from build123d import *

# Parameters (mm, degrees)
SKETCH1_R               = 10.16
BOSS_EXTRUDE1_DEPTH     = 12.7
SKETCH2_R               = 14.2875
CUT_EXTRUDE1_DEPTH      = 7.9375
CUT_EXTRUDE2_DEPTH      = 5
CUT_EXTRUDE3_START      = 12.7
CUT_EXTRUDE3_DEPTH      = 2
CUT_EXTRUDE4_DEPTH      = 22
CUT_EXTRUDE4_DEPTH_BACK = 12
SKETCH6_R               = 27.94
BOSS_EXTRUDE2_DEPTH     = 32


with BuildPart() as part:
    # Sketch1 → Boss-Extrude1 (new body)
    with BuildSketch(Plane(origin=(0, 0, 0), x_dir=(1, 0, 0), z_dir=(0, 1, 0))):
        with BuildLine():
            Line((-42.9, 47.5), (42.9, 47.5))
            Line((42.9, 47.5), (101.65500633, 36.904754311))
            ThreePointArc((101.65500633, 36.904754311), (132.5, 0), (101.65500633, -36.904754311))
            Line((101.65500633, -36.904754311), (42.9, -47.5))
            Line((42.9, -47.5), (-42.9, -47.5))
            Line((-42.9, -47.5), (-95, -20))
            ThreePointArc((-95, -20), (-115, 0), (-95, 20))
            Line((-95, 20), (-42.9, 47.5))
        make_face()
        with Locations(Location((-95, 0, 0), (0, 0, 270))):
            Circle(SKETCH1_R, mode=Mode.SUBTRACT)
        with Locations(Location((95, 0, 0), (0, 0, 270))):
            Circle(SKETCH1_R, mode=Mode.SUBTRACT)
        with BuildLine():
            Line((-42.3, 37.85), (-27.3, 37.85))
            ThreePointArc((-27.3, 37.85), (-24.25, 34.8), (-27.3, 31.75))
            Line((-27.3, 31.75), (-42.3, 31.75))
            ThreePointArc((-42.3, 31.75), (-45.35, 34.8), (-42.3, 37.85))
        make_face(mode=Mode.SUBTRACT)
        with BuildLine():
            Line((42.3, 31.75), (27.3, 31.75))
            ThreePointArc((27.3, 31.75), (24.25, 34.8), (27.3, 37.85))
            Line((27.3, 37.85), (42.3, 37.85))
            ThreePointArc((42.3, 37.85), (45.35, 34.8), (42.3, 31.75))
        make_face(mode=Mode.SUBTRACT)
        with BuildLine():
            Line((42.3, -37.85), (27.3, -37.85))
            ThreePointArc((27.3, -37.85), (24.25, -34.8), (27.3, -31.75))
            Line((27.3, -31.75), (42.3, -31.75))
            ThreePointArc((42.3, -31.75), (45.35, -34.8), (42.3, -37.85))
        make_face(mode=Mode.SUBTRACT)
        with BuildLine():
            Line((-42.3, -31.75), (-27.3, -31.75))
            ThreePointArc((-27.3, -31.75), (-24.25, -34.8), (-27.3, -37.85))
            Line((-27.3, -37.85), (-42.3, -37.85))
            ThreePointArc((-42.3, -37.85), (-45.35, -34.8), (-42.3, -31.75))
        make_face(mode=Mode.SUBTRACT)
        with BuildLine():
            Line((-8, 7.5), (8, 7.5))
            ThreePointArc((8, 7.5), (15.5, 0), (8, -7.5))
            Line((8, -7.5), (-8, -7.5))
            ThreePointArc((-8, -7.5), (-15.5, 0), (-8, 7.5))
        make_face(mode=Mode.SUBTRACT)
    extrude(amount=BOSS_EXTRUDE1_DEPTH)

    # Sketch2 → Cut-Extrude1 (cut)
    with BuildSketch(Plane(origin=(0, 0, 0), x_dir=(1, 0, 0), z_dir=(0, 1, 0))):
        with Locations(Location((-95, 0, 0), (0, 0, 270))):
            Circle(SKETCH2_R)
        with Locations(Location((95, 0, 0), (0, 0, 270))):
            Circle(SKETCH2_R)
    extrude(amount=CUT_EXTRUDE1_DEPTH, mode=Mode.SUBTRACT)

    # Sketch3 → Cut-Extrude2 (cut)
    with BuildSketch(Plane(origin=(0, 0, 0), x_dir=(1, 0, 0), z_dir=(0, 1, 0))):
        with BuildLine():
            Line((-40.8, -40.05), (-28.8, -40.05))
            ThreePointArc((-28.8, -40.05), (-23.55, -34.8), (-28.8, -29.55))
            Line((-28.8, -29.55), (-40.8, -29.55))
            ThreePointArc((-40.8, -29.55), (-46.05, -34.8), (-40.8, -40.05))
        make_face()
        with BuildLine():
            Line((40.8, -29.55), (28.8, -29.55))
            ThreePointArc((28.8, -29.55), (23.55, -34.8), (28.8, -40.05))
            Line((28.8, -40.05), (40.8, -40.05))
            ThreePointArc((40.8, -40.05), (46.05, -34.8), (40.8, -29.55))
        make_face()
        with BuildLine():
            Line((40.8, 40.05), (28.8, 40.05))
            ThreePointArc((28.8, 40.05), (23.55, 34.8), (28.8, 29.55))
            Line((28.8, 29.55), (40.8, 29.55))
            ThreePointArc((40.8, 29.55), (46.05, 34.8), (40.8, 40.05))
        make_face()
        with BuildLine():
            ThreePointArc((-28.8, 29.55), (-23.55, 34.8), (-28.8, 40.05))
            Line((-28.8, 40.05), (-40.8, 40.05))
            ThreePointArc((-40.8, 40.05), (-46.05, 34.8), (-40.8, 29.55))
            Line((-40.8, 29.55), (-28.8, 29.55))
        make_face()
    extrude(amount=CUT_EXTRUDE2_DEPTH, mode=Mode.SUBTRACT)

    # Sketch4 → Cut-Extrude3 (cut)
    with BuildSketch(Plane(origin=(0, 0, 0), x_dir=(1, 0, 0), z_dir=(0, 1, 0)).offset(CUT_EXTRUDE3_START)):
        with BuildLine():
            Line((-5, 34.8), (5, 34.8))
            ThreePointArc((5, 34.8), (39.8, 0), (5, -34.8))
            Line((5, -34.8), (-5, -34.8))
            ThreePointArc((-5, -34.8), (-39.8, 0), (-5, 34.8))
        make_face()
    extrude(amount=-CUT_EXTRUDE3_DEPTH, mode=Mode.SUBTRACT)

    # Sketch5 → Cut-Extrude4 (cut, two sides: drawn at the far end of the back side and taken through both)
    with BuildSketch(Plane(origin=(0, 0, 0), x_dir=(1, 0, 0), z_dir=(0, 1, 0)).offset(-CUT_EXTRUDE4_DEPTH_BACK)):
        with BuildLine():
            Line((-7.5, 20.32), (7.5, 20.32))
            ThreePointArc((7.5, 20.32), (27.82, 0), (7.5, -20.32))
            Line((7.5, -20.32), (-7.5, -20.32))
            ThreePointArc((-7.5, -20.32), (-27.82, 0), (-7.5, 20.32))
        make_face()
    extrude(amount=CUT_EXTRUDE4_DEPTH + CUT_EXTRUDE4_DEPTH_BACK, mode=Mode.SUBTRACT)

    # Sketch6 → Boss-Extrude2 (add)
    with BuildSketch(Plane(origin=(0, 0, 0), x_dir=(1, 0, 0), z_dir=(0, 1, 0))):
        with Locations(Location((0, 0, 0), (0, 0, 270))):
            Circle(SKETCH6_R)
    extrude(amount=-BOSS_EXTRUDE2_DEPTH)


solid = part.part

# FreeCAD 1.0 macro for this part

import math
import FreeCAD as App
import Part
import Sketcher

doc = App.newDocument("Part")
body = doc.addObject("PartDesign::Body", "Body")

sketch1 = doc.addObject("Sketcher::SketchObject", "Sketch")
body.addObject(sketch1)
sketch1.AttachmentSupport = (doc.XZ_Plane, [""])
sketch1.MapMode = "FlatFace"
sketch1.addGeometry(Part.LineSegment(App.Vector(42.9, -47.5, 0), App.Vector(-42.9, -47.5, 0)), False)
sketch1.addGeometry(Part.LineSegment(App.Vector(-42.9, -47.5, 0), App.Vector(-95, -20, 0)), False)
sketch1.addGeometry(Part.ArcOfCircle(Part.Circle(App.Vector(-95, 0, 0), App.Vector(0, 0, 1), 20), math.radians(90), math.radians(270)), False)
sketch1.addGeometry(Part.LineSegment(App.Vector(-95, 20, 0), App.Vector(-42.9, 47.5, 0)), False)
sketch1.addGeometry(Part.LineSegment(App.Vector(-42.9, 47.5, 0), App.Vector(42.9, 47.5, 0)), False)
sketch1.addGeometry(Part.LineSegment(App.Vector(42.9, 47.5, 0), App.Vector(101.655006, 36.904754, 0)), False)
sketch1.addGeometry(Part.ArcOfCircle(Part.Circle(App.Vector(95, 0, 0), App.Vector(0, 0, 1), 37.5), math.radians(-79.777755), math.radians(79.777755)), False)
sketch1.addGeometry(Part.LineSegment(App.Vector(101.655006, -36.904754, 0), App.Vector(42.9, -47.5, 0)), False)
sketch1.addGeometry(Part.LineSegment(App.Vector(42.3, 37.85, 0), App.Vector(27.3, 37.85, 0)), False)
sketch1.addGeometry(Part.ArcOfCircle(Part.Circle(App.Vector(27.3, 34.8, 0), App.Vector(0, 0, 1), 3.05), math.radians(90), math.radians(270)), False)
sketch1.addGeometry(Part.LineSegment(App.Vector(27.3, 31.75, 0), App.Vector(42.3, 31.75, 0)), False)
sketch1.addGeometry(Part.ArcOfCircle(Part.Circle(App.Vector(42.3, 34.8, 0), App.Vector(0, 0, 1), 3.05), math.radians(-90), math.radians(90)), False)
sketch1.addGeometry(Part.LineSegment(App.Vector(-42.3, 31.75, 0), App.Vector(-27.3, 31.75, 0)), False)
sketch1.addGeometry(Part.ArcOfCircle(Part.Circle(App.Vector(-27.3, 34.8, 0), App.Vector(0, 0, 1), 3.05), math.radians(-90), math.radians(90)), False)
sketch1.addGeometry(Part.LineSegment(App.Vector(-27.3, 37.85, 0), App.Vector(-42.3, 37.85, 0)), False)
sketch1.addGeometry(Part.ArcOfCircle(Part.Circle(App.Vector(-42.3, 34.8, 0), App.Vector(0, 0, 1), 3.05), math.radians(90), math.radians(270)), False)
sketch1.addGeometry(Part.Circle(App.Vector(95, 0, 0), App.Vector(0, 0, 1), 10.16), False)
sketch1.addGeometry(Part.LineSegment(App.Vector(42.3, -31.75, 0), App.Vector(27.3, -31.75, 0)), False)
sketch1.addGeometry(Part.ArcOfCircle(Part.Circle(App.Vector(27.3, -34.8, 0), App.Vector(0, 0, 1), 3.05), math.radians(90), math.radians(270)), False)
sketch1.addGeometry(Part.LineSegment(App.Vector(27.3, -37.85, 0), App.Vector(42.3, -37.85, 0)), False)
sketch1.addGeometry(Part.ArcOfCircle(Part.Circle(App.Vector(42.3, -34.8, 0), App.Vector(0, 0, 1), 3.05), math.radians(-90), math.radians(90)), False)
sketch1.addGeometry(Part.LineSegment(App.Vector(-8, -7.5, 0), App.Vector(8, -7.5, 0)), False)
sketch1.addGeometry(Part.ArcOfCircle(Part.Circle(App.Vector(8, 0, 0), App.Vector(0, 0, 1), 7.5), math.radians(-90), math.radians(90)), False)
sketch1.addGeometry(Part.LineSegment(App.Vector(8, 7.5, 0), App.Vector(-8, 7.5, 0)), False)
sketch1.addGeometry(Part.ArcOfCircle(Part.Circle(App.Vector(-8, 0, 0), App.Vector(0, 0, 1), 7.5), math.radians(90), math.radians(270)), False)
sketch1.addGeometry(Part.Circle(App.Vector(-95, 0, 0), App.Vector(0, 0, 1), 10.16), False)
sketch1.addGeometry(Part.LineSegment(App.Vector(-42.3, -37.85, 0), App.Vector(-27.3, -37.85, 0)), False)
sketch1.addGeometry(Part.ArcOfCircle(Part.Circle(App.Vector(-27.3, -34.8, 0), App.Vector(0, 0, 1), 3.05), math.radians(-90), math.radians(90)), False)
sketch1.addGeometry(Part.LineSegment(App.Vector(-27.3, -31.75, 0), App.Vector(-42.3, -31.75, 0)), False)
sketch1.addGeometry(Part.ArcOfCircle(Part.Circle(App.Vector(-42.3, -34.8, 0), App.Vector(0, 0, 1), 3.05), math.radians(90), math.radians(270)), False)
sketch1.addConstraint(Sketcher.Constraint("Coincident", 0, 2, 1, 1))
sketch1.addConstraint(Sketcher.Constraint("Coincident", 1, 2, 2, 2))
sketch1.addConstraint(Sketcher.Constraint("Coincident", 2, 1, 3, 1))
sketch1.addConstraint(Sketcher.Constraint("Coincident", 3, 2, 4, 1))
sketch1.addConstraint(Sketcher.Constraint("Coincident", 4, 2, 5, 1))
sketch1.addConstraint(Sketcher.Constraint("Tangent", 5, 2, 6, 2))
sketch1.addConstraint(Sketcher.Constraint("Tangent", 6, 1, 7, 1))
sketch1.addConstraint(Sketcher.Constraint("Coincident", 7, 2, 0, 1))
sketch1.addConstraint(Sketcher.Constraint("Tangent", 8, 2, 9, 1))
sketch1.addConstraint(Sketcher.Constraint("Tangent", 9, 2, 10, 1))
sketch1.addConstraint(Sketcher.Constraint("Tangent", 10, 2, 11, 1))
sketch1.addConstraint(Sketcher.Constraint("Tangent", 11, 2, 8, 1))
sketch1.addConstraint(Sketcher.Constraint("Tangent", 12, 2, 13, 1))
sketch1.addConstraint(Sketcher.Constraint("Tangent", 13, 2, 14, 1))
sketch1.addConstraint(Sketcher.Constraint("Tangent", 14, 2, 15, 1))
sketch1.addConstraint(Sketcher.Constraint("Tangent", 15, 2, 12, 1))
sketch1.addConstraint(Sketcher.Constraint("Tangent", 17, 2, 18, 1))
sketch1.addConstraint(Sketcher.Constraint("Tangent", 18, 2, 19, 1))
sketch1.addConstraint(Sketcher.Constraint("Tangent", 19, 2, 20, 1))
sketch1.addConstraint(Sketcher.Constraint("Tangent", 20, 2, 17, 1))
sketch1.addConstraint(Sketcher.Constraint("Tangent", 21, 2, 22, 1))
sketch1.addConstraint(Sketcher.Constraint("Tangent", 22, 2, 23, 1))
sketch1.addConstraint(Sketcher.Constraint("Tangent", 23, 2, 24, 1))
sketch1.addConstraint(Sketcher.Constraint("Tangent", 24, 2, 21, 1))
sketch1.addConstraint(Sketcher.Constraint("Tangent", 26, 2, 27, 1))
sketch1.addConstraint(Sketcher.Constraint("Tangent", 27, 2, 28, 1))
sketch1.addConstraint(Sketcher.Constraint("Tangent", 28, 2, 29, 1))
sketch1.addConstraint(Sketcher.Constraint("Tangent", 29, 2, 26, 1))
sketch1.addConstraint(Sketcher.Constraint("Horizontal", 0))
sketch1.addConstraint(Sketcher.Constraint("Horizontal", 4))
sketch1.addConstraint(Sketcher.Constraint("Horizontal", 8))
sketch1.addConstraint(Sketcher.Constraint("Horizontal", 10))
sketch1.addConstraint(Sketcher.Constraint("Horizontal", 12))
sketch1.addConstraint(Sketcher.Constraint("Horizontal", 14))
sketch1.addConstraint(Sketcher.Constraint("Horizontal", 17))
sketch1.addConstraint(Sketcher.Constraint("Horizontal", 19))
sketch1.addConstraint(Sketcher.Constraint("Horizontal", 21))
sketch1.addConstraint(Sketcher.Constraint("Horizontal", 23))
sketch1.addConstraint(Sketcher.Constraint("Horizontal", 26))
sketch1.addConstraint(Sketcher.Constraint("Horizontal", 28))
sketch1.addConstraint(Sketcher.Constraint("Coincident", 16, 3, 6, 3))
sketch1.addConstraint(Sketcher.Constraint("Coincident", 25, 3, 2, 3))
sketch1.addConstraint(Sketcher.Constraint("Equal", 11, 13))
sketch1.addConstraint(Sketcher.Constraint("Equal", 15, 18))
sketch1.addConstraint(Sketcher.Constraint("Equal", 16, 25))
sketch1.addConstraint(Sketcher.Constraint("Equal", 20, 27))
sketch1.addConstraint(Sketcher.Constraint("Symmetric", 2, 3, 6, 3, -1, 1))
sketch1.addConstraint(Sketcher.Constraint("Symmetric", 13, 3, 18, 3, -1, 1))
sketch1.addConstraint(Sketcher.Constraint("Symmetric", 22, 3, 24, 3, -1, 1))
sketch1.addConstraint(Sketcher.Constraint("Symmetric", 9, 3, 27, 3, -1, 1))
sketch1.addConstraint(Sketcher.Constraint("Symmetric", 0, 2, 4, 2, -1, 1))
sketch1.addConstraint(Sketcher.Constraint("Symmetric", 9, 3, 13, 3, -2))
sketch1.addConstraint(Sketcher.Constraint("Symmetric", 1, 2, 2, 1, -1))
sketch1.addConstraint(Sketcher.Constraint("Vertical", 11, 3, 20, 3))
sketch1.addConstraint(Sketcher.Constraint("Vertical", 15, 3, 29, 3))
sketch1.addConstraint(Sketcher.Constraint("Vertical", 25, 3, 1, 2))
sketch1.addConstraint(Sketcher.Constraint("Vertical", 0, 2, 3, 2))
sketch1.addConstraint(Sketcher.Constraint("Vertical", 5, 2, 6, 1))
sketch1.addConstraint(Sketcher.Constraint("Equal", 10, 12))
sketch1.addConstraint(Sketcher.Constraint("Radius", 2, 20.0))
sketch1.addConstraint(Sketcher.Constraint("Radius", 6, 37.5))
sketch1.addConstraint(Sketcher.Constraint("Radius", 22, 7.5))
sketch1.addConstraint(Sketcher.Constraint("Diameter", 16, 20.32))
sketch1.addConstraint(Sketcher.Constraint("DistanceX", 8, 2, 8, 1, 15.0))
sketch1.addConstraint(Sketcher.Constraint("DistanceX", 21, 1, 21, 2, 16.0))
sketch1.addConstraint(Sketcher.Constraint("Radius", 9, 3.05))
sketch1.addConstraint(Sketcher.Constraint("DistanceX", 0, 2, 0, 1, 85.8))
sketch1.addConstraint(Sketcher.Constraint("DistanceX", 2, 3, -1, 1, 95.0))
sketch1.addConstraint(Sketcher.Constraint("DistanceX", -1, 1, 9, 3, 27.3))
sketch1.addConstraint(Sketcher.Constraint("DistanceY", -1, 1, 9, 3, 34.8))
sketch1.addConstraint(Sketcher.Constraint("DistanceY", 0, 2, -1, 1, 47.5))
pad1 = doc.addObject("PartDesign::Pad", "Pad")
body.addObject(pad1)
pad1.Profile = sketch1
pad1.Length = 12.7
pad1.Reversed = True

sketch2 = doc.addObject("Sketcher::SketchObject", "Sketch001")
body.addObject(sketch2)
sketch2.AttachmentSupport = (doc.XZ_Plane, [""])
sketch2.MapMode = "FlatFace"
sketch2.addGeometry(Part.Circle(App.Vector(-95, 0, 0), App.Vector(0, 0, 1), 14.2875), False)
sketch2.addGeometry(Part.Circle(App.Vector(95, 0, 0), App.Vector(0, 0, 1), 14.2875), False)
sketch2.addConstraint(Sketcher.Constraint("Equal", 0, 1))
sketch2.addConstraint(Sketcher.Constraint("Symmetric", 0, 3, 1, 3, -1, 1))
sketch2.addConstraint(Sketcher.Constraint("PointOnObject", 0, 3, -1))
sketch2.addConstraint(Sketcher.Constraint("Diameter", 0, 28.575))
sketch2.addConstraint(Sketcher.Constraint("DistanceX", 0, 3, -1, 1, 95.0))
pocket1 = doc.addObject("PartDesign::Pocket", "Pocket")
body.addObject(pocket1)
pocket1.Profile = sketch2
pocket1.Length = 7.9375

sketch3 = doc.addObject("Sketcher::SketchObject", "Sketch002")
body.addObject(sketch3)
sketch3.AttachmentSupport = (doc.XZ_Plane, [""])
sketch3.MapMode = "FlatFace"
sketch3.addGeometry(Part.LineSegment(App.Vector(-40.8, 40.05, 0), App.Vector(-28.8, 40.05, 0)), False)
sketch3.addGeometry(Part.ArcOfCircle(Part.Circle(App.Vector(-28.8, 34.8, 0), App.Vector(0, 0, 1), 5.25), math.radians(-90), math.radians(90)), False)
sketch3.addGeometry(Part.LineSegment(App.Vector(-28.8, 29.55, 0), App.Vector(-40.8, 29.55, 0)), False)
sketch3.addGeometry(Part.ArcOfCircle(Part.Circle(App.Vector(-40.8, 34.8, 0), App.Vector(0, 0, 1), 5.25), math.radians(90), math.radians(270)), False)
sketch3.addGeometry(Part.LineSegment(App.Vector(40.8, 29.55, 0), App.Vector(28.8, 29.55, 0)), False)
sketch3.addGeometry(Part.ArcOfCircle(Part.Circle(App.Vector(28.8, 34.8, 0), App.Vector(0, 0, 1), 5.25), math.radians(90), math.radians(270)), False)
sketch3.addGeometry(Part.LineSegment(App.Vector(28.8, 40.05, 0), App.Vector(40.8, 40.05, 0)), False)
sketch3.addGeometry(Part.ArcOfCircle(Part.Circle(App.Vector(40.8, 34.8, 0), App.Vector(0, 0, 1), 5.25), math.radians(-90), math.radians(90)), False)
sketch3.addGeometry(Part.LineSegment(App.Vector(40.8, -40.05, 0), App.Vector(28.8, -40.05, 0)), False)
sketch3.addGeometry(Part.ArcOfCircle(Part.Circle(App.Vector(28.8, -34.8, 0), App.Vector(0, 0, 1), 5.25), math.radians(90), math.radians(270)), False)
sketch3.addGeometry(Part.LineSegment(App.Vector(28.8, -29.55, 0), App.Vector(40.8, -29.55, 0)), False)
sketch3.addGeometry(Part.ArcOfCircle(Part.Circle(App.Vector(40.8, -34.8, 0), App.Vector(0, 0, 1), 5.25), math.radians(-90), math.radians(90)), False)
sketch3.addGeometry(Part.ArcOfCircle(Part.Circle(App.Vector(-28.8, -34.8, 0), App.Vector(0, 0, 1), 5.25), math.radians(-90), math.radians(90)), False)
sketch3.addGeometry(Part.LineSegment(App.Vector(-28.8, -40.05, 0), App.Vector(-40.8, -40.05, 0)), False)
sketch3.addGeometry(Part.ArcOfCircle(Part.Circle(App.Vector(-40.8, -34.8, 0), App.Vector(0, 0, 1), 5.25), math.radians(90), math.radians(270)), False)
sketch3.addGeometry(Part.LineSegment(App.Vector(-40.8, -29.55, 0), App.Vector(-28.8, -29.55, 0)), False)
sketch3.addConstraint(Sketcher.Constraint("Tangent", 0, 2, 1, 2))
sketch3.addConstraint(Sketcher.Constraint("Tangent", 1, 1, 2, 1))
sketch3.addConstraint(Sketcher.Constraint("Tangent", 2, 2, 3, 2))
sketch3.addConstraint(Sketcher.Constraint("Tangent", 3, 1, 0, 1))
sketch3.addConstraint(Sketcher.Constraint("Tangent", 4, 2, 5, 2))
sketch3.addConstraint(Sketcher.Constraint("Tangent", 5, 1, 6, 1))
sketch3.addConstraint(Sketcher.Constraint("Tangent", 6, 2, 7, 2))
sketch3.addConstraint(Sketcher.Constraint("Tangent", 7, 1, 4, 1))
sketch3.addConstraint(Sketcher.Constraint("Tangent", 8, 2, 9, 2))
sketch3.addConstraint(Sketcher.Constraint("Tangent", 9, 1, 10, 1))
sketch3.addConstraint(Sketcher.Constraint("Tangent", 10, 2, 11, 2))
sketch3.addConstraint(Sketcher.Constraint("Tangent", 11, 1, 8, 1))
sketch3.addConstraint(Sketcher.Constraint("Tangent", 12, 1, 13, 1))
sketch3.addConstraint(Sketcher.Constraint("Tangent", 13, 2, 14, 2))
sketch3.addConstraint(Sketcher.Constraint("Tangent", 14, 1, 15, 1))
sketch3.addConstraint(Sketcher.Constraint("Tangent", 15, 2, 12, 2))
sketch3.addConstraint(Sketcher.Constraint("Horizontal", 0))
sketch3.addConstraint(Sketcher.Constraint("Horizontal", 2))
sketch3.addConstraint(Sketcher.Constraint("Horizontal", 4))
sketch3.addConstraint(Sketcher.Constraint("Horizontal", 6))
sketch3.addConstraint(Sketcher.Constraint("Horizontal", 8))
sketch3.addConstraint(Sketcher.Constraint("Horizontal", 10))
sketch3.addConstraint(Sketcher.Constraint("Horizontal", 13))
sketch3.addConstraint(Sketcher.Constraint("Horizontal", 15))
sketch3.addConstraint(Sketcher.Constraint("Equal", 3, 5))
sketch3.addConstraint(Sketcher.Constraint("Equal", 7, 9))
sketch3.addConstraint(Sketcher.Constraint("Equal", 11, 12))
sketch3.addConstraint(Sketcher.Constraint("Symmetric", 1, 3, 9, 3, -1, 1))
sketch3.addConstraint(Sketcher.Constraint("Symmetric", 5, 3, 12, 3, -1, 1))
sketch3.addConstraint(Sketcher.Constraint("Symmetric", 1, 3, 5, 3, -2))
sketch3.addConstraint(Sketcher.Constraint("Vertical", 7, 3, 11, 3))
sketch3.addConstraint(Sketcher.Constraint("Vertical", 3, 3, 14, 3))
sketch3.addConstraint(Sketcher.Constraint("Equal", 2, 4))
sketch3.addConstraint(Sketcher.Constraint("DistanceX", 0, 1, 0, 2, 12.0))
sketch3.addConstraint(Sketcher.Constraint("Radius", 1, 5.25))
sketch3.addConstraint(Sketcher.Constraint("DistanceX", 1, 3, -1, 1, 28.8))
sketch3.addConstraint(Sketcher.Constraint("DistanceY", -1, 1, 1, 3, 34.8))
pocket2 = doc.addObject("PartDesign::Pocket", "Pocket001")
body.addObject(pocket2)
pocket2.Profile = sketch3
pocket2.Length = 5

sketch4 = doc.addObject("Sketcher::SketchObject", "Sketch003")
body.addObject(sketch4)
sketch4.AttachmentSupport = (doc.XZ_Plane, [""])
sketch4.MapMode = "FlatFace"
sketch4.AttachmentOffset = App.Placement(App.Vector(0, 0, -12.7), App.Rotation())
sketch4.addGeometry(Part.LineSegment(App.Vector(5, -34.8, 0), App.Vector(-5, -34.8, 0)), False)
sketch4.addGeometry(Part.ArcOfCircle(Part.Circle(App.Vector(-5, 0, 0), App.Vector(0, 0, 1), 34.8), math.radians(90), math.radians(270)), False)
sketch4.addGeometry(Part.LineSegment(App.Vector(-5, 34.8, 0), App.Vector(5, 34.8, 0)), False)
sketch4.addGeometry(Part.ArcOfCircle(Part.Circle(App.Vector(5, 0, 0), App.Vector(0, 0, 1), 34.8), math.radians(-90), math.radians(90)), False)
sketch4.addConstraint(Sketcher.Constraint("Tangent", 0, 2, 1, 2))
sketch4.addConstraint(Sketcher.Constraint("Tangent", 1, 1, 2, 1))
sketch4.addConstraint(Sketcher.Constraint("Tangent", 2, 2, 3, 2))
sketch4.addConstraint(Sketcher.Constraint("Tangent", 3, 1, 0, 1))
sketch4.addConstraint(Sketcher.Constraint("Horizontal", 0))
sketch4.addConstraint(Sketcher.Constraint("Horizontal", 2))
sketch4.addConstraint(Sketcher.Constraint("Symmetric", 1, 3, 3, 3, -1, 1))
sketch4.addConstraint(Sketcher.Constraint("Radius", 1, 34.8))
sketch4.addConstraint(Sketcher.Constraint("DistanceX", 0, 2, 0, 1, 10.0))
pocket3 = doc.addObject("PartDesign::Pocket", "Pocket002")
body.addObject(pocket3)
pocket3.Profile = sketch4
pocket3.Length = 2
pocket3.Reversed = True

sketch5 = doc.addObject("Sketcher::SketchObject", "Sketch004")
body.addObject(sketch5)
sketch5.AttachmentSupport = (doc.XZ_Plane, [""])
sketch5.MapMode = "FlatFace"
sketch5.addGeometry(Part.LineSegment(App.Vector(7.5, -20.32, 0), App.Vector(-7.5, -20.32, 0)), False)
sketch5.addGeometry(Part.ArcOfCircle(Part.Circle(App.Vector(-7.5, 0, 0), App.Vector(0, 0, 1), 20.32), math.radians(90), math.radians(270)), False)
sketch5.addGeometry(Part.LineSegment(App.Vector(-7.5, 20.32, 0), App.Vector(7.5, 20.32, 0)), False)
sketch5.addGeometry(Part.ArcOfCircle(Part.Circle(App.Vector(7.5, 0, 0), App.Vector(0, 0, 1), 20.32), math.radians(-90), math.radians(90)), False)
sketch5.addConstraint(Sketcher.Constraint("Tangent", 0, 2, 1, 2))
sketch5.addConstraint(Sketcher.Constraint("Tangent", 1, 1, 2, 1))
sketch5.addConstraint(Sketcher.Constraint("Tangent", 2, 2, 3, 2))
sketch5.addConstraint(Sketcher.Constraint("Tangent", 3, 1, 0, 1))
sketch5.addConstraint(Sketcher.Constraint("Horizontal", 0))
sketch5.addConstraint(Sketcher.Constraint("Horizontal", 2))
sketch5.addConstraint(Sketcher.Constraint("Symmetric", 1, 3, 3, 3, -1, 1))
sketch5.addConstraint(Sketcher.Constraint("DistanceX", 0, 2, 0, 1, 15.0))
sketch5.addConstraint(Sketcher.Constraint("Radius", 1, 20.32))
pocket4 = doc.addObject("PartDesign::Pocket", "Pocket003")
body.addObject(pocket4)
pocket4.Profile = sketch5
pocket4.Type = "ThroughAll"
pocket4.Midplane = True

sketch6 = doc.addObject("Sketcher::SketchObject", "Sketch005")
body.addObject(sketch6)
sketch6.AttachmentSupport = (doc.XZ_Plane, [""])
sketch6.MapMode = "FlatFace"
sketch6.addGeometry(Part.Circle(App.Vector(0, 0, 0), App.Vector(0, 0, 1), 27.94), False)
sketch6.addConstraint(Sketcher.Constraint("Coincident", 0, 3, -1, 1))
sketch6.addConstraint(Sketcher.Constraint("Diameter", 0, 55.88))
pad2 = doc.addObject("PartDesign::Pad", "Pad001")
body.addObject(pad2)
pad2.Profile = sketch6
pad2.Length = 32

doc.recompute()
